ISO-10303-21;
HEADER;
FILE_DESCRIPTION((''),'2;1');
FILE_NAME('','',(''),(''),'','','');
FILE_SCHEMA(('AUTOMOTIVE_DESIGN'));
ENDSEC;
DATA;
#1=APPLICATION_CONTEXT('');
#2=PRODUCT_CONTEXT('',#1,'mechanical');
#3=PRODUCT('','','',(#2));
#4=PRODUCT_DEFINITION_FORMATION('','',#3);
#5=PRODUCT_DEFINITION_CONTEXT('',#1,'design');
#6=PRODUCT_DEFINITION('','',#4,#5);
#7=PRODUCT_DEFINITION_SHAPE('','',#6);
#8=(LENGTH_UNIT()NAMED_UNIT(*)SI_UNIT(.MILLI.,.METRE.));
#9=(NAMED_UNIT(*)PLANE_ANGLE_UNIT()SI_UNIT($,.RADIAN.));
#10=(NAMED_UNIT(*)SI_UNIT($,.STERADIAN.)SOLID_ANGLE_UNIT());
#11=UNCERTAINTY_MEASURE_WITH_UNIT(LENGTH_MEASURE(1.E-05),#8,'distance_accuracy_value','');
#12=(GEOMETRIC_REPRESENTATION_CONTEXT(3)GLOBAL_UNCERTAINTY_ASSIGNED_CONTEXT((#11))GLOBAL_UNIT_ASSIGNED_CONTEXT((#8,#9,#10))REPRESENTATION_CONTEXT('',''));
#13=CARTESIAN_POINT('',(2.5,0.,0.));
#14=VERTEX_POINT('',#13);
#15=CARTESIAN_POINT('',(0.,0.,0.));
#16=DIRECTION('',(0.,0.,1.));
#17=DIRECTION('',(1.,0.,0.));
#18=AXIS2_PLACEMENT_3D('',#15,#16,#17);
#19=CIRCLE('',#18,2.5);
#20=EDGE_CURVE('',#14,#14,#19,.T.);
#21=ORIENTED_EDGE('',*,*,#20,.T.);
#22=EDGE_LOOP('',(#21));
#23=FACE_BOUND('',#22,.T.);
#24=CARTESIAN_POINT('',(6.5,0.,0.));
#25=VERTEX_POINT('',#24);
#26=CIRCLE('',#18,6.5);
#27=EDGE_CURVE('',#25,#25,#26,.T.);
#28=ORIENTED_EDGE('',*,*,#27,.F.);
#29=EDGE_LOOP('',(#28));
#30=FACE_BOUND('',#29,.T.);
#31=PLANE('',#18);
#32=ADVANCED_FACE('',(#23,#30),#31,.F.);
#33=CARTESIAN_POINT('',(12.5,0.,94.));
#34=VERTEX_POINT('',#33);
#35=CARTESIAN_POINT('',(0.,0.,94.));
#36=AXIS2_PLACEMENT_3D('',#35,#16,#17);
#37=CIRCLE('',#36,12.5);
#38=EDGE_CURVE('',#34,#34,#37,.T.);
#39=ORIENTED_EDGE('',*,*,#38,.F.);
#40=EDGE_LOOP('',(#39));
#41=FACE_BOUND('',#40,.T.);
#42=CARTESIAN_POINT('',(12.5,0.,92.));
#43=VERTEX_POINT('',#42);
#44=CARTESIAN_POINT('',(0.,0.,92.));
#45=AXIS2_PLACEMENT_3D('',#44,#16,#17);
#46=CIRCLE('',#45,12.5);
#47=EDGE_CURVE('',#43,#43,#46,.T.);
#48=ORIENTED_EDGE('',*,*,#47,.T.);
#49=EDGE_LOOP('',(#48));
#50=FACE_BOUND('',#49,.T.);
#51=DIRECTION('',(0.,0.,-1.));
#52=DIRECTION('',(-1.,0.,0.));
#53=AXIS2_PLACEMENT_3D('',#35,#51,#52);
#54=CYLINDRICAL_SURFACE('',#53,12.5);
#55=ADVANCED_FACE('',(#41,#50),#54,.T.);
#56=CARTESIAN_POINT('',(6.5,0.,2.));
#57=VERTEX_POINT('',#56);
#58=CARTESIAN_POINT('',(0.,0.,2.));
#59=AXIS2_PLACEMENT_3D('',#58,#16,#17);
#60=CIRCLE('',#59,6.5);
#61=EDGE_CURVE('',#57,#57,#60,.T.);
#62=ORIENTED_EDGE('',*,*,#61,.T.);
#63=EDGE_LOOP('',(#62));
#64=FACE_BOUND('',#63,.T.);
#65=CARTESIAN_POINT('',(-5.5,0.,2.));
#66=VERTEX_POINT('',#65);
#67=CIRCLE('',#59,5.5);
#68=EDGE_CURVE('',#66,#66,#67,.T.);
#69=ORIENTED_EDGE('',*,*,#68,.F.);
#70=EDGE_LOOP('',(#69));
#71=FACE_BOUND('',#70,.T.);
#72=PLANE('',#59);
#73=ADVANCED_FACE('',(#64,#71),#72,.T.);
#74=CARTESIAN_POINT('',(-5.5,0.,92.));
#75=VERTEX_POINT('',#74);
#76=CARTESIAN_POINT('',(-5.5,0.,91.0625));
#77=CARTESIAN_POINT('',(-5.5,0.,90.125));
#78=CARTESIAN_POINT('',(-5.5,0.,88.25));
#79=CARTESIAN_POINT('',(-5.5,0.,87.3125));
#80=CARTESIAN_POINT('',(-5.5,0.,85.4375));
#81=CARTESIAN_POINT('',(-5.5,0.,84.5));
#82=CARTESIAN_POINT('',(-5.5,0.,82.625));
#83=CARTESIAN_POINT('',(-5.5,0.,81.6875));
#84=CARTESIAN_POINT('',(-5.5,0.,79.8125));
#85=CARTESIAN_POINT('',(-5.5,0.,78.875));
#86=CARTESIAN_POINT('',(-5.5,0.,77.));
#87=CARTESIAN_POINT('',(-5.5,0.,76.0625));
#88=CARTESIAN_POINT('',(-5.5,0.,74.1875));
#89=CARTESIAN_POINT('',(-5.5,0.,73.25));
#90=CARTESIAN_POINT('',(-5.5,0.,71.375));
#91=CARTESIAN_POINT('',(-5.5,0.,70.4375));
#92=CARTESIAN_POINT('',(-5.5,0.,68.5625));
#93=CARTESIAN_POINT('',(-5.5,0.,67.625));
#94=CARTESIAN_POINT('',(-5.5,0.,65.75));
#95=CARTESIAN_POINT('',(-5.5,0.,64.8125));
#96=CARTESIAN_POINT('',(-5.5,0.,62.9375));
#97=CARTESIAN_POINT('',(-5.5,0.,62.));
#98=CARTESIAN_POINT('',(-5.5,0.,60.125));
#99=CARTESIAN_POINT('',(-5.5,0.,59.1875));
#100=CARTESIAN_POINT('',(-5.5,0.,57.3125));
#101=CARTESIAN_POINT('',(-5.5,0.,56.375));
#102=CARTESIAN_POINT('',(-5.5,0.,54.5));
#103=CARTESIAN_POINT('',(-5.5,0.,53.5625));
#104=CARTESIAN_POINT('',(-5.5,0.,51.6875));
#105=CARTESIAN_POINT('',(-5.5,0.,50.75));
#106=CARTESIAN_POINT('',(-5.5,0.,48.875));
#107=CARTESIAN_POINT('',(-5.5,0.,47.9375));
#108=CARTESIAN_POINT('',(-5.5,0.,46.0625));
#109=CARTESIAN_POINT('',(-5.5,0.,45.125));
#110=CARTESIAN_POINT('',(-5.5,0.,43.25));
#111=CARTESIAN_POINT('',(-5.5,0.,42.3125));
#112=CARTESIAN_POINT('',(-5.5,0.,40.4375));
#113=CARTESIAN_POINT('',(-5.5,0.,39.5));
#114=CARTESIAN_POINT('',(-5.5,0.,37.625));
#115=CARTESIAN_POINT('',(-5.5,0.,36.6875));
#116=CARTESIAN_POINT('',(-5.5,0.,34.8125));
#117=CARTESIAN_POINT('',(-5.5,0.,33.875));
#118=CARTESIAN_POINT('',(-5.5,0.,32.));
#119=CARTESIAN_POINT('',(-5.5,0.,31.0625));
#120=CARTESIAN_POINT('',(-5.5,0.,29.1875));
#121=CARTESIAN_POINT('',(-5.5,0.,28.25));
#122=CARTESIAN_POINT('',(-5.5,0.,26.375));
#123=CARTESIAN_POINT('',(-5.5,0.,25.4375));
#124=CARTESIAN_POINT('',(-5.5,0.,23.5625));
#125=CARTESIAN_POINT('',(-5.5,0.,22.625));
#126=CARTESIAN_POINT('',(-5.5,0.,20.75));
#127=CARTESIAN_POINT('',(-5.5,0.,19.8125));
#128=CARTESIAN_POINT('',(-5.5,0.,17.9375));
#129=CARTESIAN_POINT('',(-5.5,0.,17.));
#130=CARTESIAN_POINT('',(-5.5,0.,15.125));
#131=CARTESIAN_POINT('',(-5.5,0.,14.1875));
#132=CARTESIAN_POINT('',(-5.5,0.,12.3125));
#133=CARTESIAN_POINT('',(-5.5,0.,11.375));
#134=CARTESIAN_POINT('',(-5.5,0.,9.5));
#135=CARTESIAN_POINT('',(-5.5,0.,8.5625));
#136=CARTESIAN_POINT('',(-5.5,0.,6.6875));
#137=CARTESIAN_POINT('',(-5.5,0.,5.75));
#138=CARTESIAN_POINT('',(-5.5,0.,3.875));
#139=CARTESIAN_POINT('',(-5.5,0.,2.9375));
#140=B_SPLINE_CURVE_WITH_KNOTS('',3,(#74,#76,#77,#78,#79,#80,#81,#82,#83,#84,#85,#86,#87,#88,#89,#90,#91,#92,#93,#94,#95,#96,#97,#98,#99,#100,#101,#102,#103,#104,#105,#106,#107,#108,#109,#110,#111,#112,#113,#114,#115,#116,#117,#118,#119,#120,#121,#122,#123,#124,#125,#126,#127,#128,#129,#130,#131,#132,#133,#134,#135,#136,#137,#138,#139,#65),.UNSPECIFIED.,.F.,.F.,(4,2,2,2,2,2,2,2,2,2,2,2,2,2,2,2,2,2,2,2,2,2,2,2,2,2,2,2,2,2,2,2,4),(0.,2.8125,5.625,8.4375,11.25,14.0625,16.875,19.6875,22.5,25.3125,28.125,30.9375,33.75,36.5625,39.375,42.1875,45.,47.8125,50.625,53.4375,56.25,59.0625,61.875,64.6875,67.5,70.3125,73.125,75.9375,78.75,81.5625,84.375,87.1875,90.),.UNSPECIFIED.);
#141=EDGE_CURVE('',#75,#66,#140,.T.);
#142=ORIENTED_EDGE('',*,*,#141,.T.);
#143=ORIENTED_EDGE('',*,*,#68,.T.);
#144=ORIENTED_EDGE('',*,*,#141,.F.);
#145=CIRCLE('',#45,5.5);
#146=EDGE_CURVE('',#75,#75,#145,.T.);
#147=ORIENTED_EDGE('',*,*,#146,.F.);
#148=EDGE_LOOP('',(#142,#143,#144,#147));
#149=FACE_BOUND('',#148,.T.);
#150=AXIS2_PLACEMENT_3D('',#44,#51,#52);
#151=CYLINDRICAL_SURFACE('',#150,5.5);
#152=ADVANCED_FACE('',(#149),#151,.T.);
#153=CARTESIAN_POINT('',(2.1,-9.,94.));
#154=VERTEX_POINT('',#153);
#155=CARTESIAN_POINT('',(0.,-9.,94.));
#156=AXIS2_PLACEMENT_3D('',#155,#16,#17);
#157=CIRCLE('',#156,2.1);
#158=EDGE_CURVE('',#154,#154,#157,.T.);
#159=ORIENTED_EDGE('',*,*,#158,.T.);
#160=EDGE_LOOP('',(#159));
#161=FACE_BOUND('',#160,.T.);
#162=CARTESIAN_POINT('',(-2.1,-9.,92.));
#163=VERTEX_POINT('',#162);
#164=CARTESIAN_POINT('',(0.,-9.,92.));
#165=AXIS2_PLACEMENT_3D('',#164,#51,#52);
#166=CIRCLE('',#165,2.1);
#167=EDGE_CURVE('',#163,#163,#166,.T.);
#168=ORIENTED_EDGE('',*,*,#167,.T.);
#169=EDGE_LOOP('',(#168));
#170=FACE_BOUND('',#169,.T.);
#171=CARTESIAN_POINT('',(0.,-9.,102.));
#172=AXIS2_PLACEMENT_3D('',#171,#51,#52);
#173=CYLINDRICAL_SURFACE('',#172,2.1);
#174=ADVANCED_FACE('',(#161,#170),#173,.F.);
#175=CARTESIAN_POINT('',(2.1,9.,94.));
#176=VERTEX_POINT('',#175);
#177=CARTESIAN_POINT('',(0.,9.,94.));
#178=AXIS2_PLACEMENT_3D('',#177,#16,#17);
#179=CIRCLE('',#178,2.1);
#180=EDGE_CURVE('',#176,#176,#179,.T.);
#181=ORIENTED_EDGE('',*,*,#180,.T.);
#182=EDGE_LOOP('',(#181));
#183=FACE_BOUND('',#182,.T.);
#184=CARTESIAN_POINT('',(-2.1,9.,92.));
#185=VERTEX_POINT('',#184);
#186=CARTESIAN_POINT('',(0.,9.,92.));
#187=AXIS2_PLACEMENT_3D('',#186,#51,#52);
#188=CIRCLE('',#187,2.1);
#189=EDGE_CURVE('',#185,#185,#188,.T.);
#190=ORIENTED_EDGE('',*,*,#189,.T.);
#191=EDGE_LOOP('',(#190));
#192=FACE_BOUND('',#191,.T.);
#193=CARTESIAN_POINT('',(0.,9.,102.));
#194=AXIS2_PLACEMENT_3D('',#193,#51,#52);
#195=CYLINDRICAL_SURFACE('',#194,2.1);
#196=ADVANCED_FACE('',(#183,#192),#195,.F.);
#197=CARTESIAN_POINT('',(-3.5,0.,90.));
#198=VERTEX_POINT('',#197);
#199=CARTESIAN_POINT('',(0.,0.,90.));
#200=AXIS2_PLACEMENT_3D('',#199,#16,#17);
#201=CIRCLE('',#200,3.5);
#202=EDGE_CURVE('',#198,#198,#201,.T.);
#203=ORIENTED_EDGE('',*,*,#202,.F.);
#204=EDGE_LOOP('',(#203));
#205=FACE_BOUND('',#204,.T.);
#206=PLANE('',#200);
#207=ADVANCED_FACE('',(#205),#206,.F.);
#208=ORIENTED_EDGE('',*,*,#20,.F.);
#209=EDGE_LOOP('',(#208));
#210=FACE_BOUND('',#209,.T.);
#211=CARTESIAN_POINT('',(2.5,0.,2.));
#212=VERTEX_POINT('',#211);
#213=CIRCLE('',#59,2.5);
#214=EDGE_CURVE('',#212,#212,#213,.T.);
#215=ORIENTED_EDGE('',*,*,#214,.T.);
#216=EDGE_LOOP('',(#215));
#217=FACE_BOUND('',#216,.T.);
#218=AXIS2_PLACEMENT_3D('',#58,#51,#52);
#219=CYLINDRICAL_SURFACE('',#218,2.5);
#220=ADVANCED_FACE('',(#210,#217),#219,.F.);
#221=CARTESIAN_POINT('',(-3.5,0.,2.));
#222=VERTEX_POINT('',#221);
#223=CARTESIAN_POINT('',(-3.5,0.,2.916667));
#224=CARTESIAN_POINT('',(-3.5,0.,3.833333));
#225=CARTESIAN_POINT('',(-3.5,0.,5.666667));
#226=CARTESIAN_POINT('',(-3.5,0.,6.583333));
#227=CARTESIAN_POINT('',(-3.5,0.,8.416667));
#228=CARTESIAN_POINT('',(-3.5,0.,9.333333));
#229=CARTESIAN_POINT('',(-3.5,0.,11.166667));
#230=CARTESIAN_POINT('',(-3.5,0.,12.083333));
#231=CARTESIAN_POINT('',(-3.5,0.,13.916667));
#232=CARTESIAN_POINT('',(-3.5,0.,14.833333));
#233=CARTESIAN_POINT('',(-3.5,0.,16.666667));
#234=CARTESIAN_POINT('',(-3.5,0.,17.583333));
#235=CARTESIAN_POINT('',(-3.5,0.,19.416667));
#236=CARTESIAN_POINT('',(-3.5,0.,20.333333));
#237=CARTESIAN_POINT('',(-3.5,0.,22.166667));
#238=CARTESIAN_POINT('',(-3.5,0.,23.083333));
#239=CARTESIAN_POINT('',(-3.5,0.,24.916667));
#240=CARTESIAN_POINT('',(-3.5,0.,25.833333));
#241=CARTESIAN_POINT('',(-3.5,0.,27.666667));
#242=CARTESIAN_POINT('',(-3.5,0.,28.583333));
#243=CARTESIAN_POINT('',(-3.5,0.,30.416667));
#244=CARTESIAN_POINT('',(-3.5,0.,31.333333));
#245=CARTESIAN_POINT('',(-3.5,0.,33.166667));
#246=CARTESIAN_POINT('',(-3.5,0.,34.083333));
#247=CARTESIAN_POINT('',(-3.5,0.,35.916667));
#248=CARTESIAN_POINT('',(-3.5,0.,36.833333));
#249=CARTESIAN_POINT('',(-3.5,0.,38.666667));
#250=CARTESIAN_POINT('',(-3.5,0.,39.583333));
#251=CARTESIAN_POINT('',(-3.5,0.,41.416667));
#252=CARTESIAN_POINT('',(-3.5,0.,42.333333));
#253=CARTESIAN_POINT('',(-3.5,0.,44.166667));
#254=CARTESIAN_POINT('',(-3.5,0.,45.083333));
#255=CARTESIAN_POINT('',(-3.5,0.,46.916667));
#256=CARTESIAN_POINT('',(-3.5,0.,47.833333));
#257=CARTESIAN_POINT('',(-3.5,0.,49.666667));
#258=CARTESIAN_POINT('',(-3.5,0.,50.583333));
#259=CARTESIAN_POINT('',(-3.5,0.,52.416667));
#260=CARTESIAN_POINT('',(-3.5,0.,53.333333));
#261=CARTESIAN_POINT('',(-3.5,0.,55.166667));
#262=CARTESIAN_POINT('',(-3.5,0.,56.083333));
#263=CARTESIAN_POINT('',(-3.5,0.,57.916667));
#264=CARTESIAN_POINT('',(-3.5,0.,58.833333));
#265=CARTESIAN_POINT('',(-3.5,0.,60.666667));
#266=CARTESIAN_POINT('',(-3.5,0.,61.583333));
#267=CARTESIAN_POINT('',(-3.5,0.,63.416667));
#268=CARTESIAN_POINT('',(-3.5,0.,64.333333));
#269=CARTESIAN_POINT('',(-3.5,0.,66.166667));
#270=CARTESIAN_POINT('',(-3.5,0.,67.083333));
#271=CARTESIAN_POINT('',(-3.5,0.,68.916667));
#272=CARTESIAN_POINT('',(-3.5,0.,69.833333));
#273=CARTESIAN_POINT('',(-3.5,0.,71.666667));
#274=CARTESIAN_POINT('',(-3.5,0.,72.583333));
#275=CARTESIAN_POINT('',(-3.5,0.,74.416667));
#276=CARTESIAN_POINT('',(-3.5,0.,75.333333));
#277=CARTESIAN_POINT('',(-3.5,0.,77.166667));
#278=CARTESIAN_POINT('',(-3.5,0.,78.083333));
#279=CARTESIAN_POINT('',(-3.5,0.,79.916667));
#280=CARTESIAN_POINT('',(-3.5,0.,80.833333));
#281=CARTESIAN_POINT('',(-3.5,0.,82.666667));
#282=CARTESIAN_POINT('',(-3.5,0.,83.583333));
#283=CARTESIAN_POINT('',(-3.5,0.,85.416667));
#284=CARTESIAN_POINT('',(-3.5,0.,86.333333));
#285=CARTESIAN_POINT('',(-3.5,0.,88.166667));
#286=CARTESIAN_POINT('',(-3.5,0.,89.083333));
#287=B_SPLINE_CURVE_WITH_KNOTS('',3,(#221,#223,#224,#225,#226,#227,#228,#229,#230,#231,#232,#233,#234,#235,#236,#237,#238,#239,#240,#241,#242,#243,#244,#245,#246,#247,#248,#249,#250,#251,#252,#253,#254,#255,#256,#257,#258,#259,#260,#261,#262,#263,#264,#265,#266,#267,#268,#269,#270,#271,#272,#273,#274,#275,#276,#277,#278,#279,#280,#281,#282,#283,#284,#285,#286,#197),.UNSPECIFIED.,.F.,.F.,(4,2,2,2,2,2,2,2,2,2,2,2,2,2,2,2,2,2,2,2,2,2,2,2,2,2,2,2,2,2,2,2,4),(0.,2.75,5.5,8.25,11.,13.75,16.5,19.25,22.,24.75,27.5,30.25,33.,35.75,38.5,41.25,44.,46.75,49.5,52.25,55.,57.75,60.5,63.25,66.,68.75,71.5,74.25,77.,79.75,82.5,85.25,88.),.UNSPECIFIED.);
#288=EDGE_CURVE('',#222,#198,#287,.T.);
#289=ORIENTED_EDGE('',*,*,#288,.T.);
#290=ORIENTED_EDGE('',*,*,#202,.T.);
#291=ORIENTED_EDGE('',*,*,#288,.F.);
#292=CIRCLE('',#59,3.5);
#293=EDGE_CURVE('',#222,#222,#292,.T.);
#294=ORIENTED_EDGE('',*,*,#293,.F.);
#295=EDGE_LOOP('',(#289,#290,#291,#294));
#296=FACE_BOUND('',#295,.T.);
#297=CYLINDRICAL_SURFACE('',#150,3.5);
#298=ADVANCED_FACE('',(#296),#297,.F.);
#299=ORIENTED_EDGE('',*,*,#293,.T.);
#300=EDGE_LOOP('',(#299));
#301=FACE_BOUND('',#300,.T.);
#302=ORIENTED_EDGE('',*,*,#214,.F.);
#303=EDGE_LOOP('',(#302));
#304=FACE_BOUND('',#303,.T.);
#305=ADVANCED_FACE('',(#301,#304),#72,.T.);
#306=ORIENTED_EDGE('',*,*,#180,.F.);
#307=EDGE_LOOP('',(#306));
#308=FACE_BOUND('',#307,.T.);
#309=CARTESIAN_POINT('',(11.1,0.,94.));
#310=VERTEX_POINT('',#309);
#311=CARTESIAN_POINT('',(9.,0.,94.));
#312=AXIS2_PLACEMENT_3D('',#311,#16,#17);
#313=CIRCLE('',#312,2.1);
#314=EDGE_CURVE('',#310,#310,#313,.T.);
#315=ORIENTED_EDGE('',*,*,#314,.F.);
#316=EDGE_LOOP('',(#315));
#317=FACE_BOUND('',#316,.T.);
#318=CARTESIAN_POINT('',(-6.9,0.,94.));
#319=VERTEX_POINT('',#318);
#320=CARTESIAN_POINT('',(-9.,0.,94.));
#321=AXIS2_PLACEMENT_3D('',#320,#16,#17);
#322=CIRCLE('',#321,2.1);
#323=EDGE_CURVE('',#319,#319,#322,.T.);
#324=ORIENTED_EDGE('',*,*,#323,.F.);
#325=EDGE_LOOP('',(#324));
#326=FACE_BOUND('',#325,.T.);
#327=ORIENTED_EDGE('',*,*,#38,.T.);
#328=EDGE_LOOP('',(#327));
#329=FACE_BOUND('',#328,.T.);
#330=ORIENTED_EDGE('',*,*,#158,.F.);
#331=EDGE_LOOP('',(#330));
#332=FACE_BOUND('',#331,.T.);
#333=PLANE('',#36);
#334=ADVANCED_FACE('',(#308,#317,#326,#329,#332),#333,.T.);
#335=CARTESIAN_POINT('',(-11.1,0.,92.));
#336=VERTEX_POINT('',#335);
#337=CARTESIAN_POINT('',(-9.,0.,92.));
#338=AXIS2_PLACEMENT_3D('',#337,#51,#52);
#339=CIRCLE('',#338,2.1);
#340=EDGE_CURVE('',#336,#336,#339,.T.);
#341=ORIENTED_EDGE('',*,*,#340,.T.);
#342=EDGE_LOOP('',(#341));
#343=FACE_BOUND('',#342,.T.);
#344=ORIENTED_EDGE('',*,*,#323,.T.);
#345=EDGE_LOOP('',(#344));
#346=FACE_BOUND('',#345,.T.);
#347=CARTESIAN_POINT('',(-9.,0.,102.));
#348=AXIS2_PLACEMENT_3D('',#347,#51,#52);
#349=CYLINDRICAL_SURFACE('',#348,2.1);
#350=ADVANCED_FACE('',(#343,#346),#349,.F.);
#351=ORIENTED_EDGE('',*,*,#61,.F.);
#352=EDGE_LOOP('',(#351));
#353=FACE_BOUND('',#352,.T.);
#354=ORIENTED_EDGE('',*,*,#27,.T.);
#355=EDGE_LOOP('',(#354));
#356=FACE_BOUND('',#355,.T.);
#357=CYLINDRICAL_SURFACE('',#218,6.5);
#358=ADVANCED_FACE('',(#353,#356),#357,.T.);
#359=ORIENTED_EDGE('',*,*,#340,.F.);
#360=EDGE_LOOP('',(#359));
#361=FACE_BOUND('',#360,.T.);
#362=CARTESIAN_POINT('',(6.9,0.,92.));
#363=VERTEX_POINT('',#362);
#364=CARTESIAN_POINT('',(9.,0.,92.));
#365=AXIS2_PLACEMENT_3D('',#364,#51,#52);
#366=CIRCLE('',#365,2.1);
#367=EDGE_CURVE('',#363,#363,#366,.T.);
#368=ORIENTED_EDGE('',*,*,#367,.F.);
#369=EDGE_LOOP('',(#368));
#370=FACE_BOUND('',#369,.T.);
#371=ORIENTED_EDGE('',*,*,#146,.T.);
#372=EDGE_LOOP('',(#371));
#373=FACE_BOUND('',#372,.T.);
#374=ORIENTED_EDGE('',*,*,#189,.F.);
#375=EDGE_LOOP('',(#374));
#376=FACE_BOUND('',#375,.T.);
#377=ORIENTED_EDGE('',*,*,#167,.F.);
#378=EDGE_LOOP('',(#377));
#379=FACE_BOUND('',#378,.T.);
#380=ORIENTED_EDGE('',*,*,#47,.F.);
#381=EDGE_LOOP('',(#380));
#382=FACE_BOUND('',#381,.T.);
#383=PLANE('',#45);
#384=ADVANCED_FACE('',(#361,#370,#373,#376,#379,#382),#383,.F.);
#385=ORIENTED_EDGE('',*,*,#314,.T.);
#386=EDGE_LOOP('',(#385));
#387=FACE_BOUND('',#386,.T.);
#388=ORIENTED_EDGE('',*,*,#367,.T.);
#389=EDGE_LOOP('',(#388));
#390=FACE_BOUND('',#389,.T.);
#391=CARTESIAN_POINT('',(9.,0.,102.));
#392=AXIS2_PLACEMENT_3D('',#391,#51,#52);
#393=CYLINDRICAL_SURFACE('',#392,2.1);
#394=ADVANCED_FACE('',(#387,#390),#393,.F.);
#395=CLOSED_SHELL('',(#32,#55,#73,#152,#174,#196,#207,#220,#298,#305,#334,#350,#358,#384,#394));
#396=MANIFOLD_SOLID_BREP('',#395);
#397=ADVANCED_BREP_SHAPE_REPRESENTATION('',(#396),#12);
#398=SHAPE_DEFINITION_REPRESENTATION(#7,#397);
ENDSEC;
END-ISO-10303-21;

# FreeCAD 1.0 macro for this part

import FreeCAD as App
import Part
import Sketcher

V = App.Vector

doc = App.newDocument("Part")
body = doc.addObject("PartDesign::Body", "Body")

sketch1 = body.newObject("Sketcher::SketchObject", "Sketch")
sketch1.AttachmentSupport = (doc.getObject("XY_Plane"), [""])
sketch1.MapMode = "FlatFace"
sketch1.addGeometry(Part.Circle(V(0, 0, 0), V(0, 0, 1), 6.5), False)
sketch1.addGeometry(Part.Circle(V(0, 0, 0), V(0, 0, 1), 2.5), False)
sketch1.addConstraint(Sketcher.Constraint("Coincident", 0, 3, -1, 1))
sketch1.addConstraint(Sketcher.Constraint("Coincident", 1, 3, -1, 1))
sketch1.addConstraint(Sketcher.Constraint("Diameter", 0, 13.0))
sketch1.addConstraint(Sketcher.Constraint("Diameter", 1, 5.0))
pad1 = body.newObject("PartDesign::Pad", "Pad")
pad1.Profile = sketch1
pad1.Length = 2

sketch2 = body.newObject("Sketcher::SketchObject", "Sketch001")
sketch2.AttachmentSupport = (doc.getObject("XY_Plane"), [""])
sketch2.MapMode = "FlatFace"
sketch2.AttachmentOffset = App.Placement(V(0, 0, 2), App.Rotation())
sketch2.addGeometry(Part.Circle(V(0, 0, 0), V(0, 0, 1), 5.5), False)
sketch2.addGeometry(Part.Circle(V(0, 0, 0), V(0, 0, 1), 3.5), False)
sketch2.addConstraint(Sketcher.Constraint("Coincident", 0, 3, -1, 1))
sketch2.addConstraint(Sketcher.Constraint("Coincident", 1, 3, -1, 1))
sketch2.addConstraint(Sketcher.Constraint("Diameter", 0, 11.0))
sketch2.addConstraint(Sketcher.Constraint("Diameter", 1, 7.0))
pad2 = body.newObject("PartDesign::Pad", "Pad001")
pad2.Profile = sketch2
pad2.Length = 90

sketch3 = body.newObject("Sketcher::SketchObject", "Sketch002")
sketch3.AttachmentSupport = (doc.getObject("XY_Plane"), [""])
sketch3.MapMode = "FlatFace"
sketch3.AttachmentOffset = App.Placement(V(0, 0, 90), App.Rotation())
sketch3.addGeometry(Part.Circle(V(0, 0, 0), V(0, 0, 1), 3.5), False)
sketch3.addConstraint(Sketcher.Constraint("Coincident", 0, 3, -1, 1))
sketch3.addConstraint(Sketcher.Constraint("Diameter", 0, 7.0))
pad3 = body.newObject("PartDesign::Pad", "Pad002")
pad3.Profile = sketch3
pad3.Length = 2

sketch4 = body.newObject("Sketcher::SketchObject", "Sketch003")
sketch4.AttachmentSupport = (doc.getObject("XY_Plane"), [""])
sketch4.MapMode = "FlatFace"
sketch4.AttachmentOffset = App.Placement(V(0, 0, 92), App.Rotation())
sketch4.addGeometry(Part.Circle(V(0, 0, 0), V(0, 0, 1), 12), False)
sketch4.addConstraint(Sketcher.Constraint("Coincident", 0, 3, -1, 1))
sketch4.addConstraint(Sketcher.Constraint("Diameter", 0, 25.0))
pad4 = body.newObject("PartDesign::Pad", "Pad003")
pad4.Profile = sketch4
pad4.Length = 2

sketch5 = body.newObject("Sketcher::SketchObject", "Sketch004")
sketch5.AttachmentSupport = (doc.getObject("XY_Plane"), [""])
sketch5.MapMode = "FlatFace"
sketch5.AttachmentOffset = App.Placement(V(0, 0, 92), App.Rotation())
sketch5.addGeometry(Part.Circle(V(0, 9, 0), V(0, 0, 1), 2.1), False)
sketch5.addGeometry(Part.Circle(V(-9, 0, 0), V(0, 0, 1), 2.1), False)
sketch5.addGeometry(Part.Circle(V(0, -9, 0), V(0, 0, 1), 2.1), False)
sketch5.addGeometry(Part.Circle(V(9, 0, 0), V(0, 0, 1), 2.1), False)
sketch5.addConstraint(Sketcher.Constraint("Equal", 0, 1))
sketch5.addConstraint(Sketcher.Constraint("Equal", 1, 2))
sketch5.addConstraint(Sketcher.Constraint("Equal", 2, 3))
sketch5.addConstraint(Sketcher.Constraint("Symmetric", 0, 3, 2, 3, -1, 1))
sketch5.addConstraint(Sketcher.Constraint("Symmetric", 1, 3, 3, 3, -1, 1))
sketch5.addConstraint(Sketcher.Constraint("PointOnObject", 0, 3, -2))
sketch5.addConstraint(Sketcher.Constraint("PointOnObject", 1, 3, -1))
sketch5.addConstraint(Sketcher.Constraint("Diameter", 0, 4.2))
sketch5.addConstraint(Sketcher.Constraint("DistanceY", -1, 1, 0, 3, 9.0))
sketch5.addConstraint(Sketcher.Constraint("DistanceX", 1, 3, -1, 1, 9.0))
pocket1 = body.newObject("PartDesign::Pocket", "Pocket")
pocket1.Profile = sketch5
pocket1.Length = 10
pocket1.Reversed = True

doc.recompute()
